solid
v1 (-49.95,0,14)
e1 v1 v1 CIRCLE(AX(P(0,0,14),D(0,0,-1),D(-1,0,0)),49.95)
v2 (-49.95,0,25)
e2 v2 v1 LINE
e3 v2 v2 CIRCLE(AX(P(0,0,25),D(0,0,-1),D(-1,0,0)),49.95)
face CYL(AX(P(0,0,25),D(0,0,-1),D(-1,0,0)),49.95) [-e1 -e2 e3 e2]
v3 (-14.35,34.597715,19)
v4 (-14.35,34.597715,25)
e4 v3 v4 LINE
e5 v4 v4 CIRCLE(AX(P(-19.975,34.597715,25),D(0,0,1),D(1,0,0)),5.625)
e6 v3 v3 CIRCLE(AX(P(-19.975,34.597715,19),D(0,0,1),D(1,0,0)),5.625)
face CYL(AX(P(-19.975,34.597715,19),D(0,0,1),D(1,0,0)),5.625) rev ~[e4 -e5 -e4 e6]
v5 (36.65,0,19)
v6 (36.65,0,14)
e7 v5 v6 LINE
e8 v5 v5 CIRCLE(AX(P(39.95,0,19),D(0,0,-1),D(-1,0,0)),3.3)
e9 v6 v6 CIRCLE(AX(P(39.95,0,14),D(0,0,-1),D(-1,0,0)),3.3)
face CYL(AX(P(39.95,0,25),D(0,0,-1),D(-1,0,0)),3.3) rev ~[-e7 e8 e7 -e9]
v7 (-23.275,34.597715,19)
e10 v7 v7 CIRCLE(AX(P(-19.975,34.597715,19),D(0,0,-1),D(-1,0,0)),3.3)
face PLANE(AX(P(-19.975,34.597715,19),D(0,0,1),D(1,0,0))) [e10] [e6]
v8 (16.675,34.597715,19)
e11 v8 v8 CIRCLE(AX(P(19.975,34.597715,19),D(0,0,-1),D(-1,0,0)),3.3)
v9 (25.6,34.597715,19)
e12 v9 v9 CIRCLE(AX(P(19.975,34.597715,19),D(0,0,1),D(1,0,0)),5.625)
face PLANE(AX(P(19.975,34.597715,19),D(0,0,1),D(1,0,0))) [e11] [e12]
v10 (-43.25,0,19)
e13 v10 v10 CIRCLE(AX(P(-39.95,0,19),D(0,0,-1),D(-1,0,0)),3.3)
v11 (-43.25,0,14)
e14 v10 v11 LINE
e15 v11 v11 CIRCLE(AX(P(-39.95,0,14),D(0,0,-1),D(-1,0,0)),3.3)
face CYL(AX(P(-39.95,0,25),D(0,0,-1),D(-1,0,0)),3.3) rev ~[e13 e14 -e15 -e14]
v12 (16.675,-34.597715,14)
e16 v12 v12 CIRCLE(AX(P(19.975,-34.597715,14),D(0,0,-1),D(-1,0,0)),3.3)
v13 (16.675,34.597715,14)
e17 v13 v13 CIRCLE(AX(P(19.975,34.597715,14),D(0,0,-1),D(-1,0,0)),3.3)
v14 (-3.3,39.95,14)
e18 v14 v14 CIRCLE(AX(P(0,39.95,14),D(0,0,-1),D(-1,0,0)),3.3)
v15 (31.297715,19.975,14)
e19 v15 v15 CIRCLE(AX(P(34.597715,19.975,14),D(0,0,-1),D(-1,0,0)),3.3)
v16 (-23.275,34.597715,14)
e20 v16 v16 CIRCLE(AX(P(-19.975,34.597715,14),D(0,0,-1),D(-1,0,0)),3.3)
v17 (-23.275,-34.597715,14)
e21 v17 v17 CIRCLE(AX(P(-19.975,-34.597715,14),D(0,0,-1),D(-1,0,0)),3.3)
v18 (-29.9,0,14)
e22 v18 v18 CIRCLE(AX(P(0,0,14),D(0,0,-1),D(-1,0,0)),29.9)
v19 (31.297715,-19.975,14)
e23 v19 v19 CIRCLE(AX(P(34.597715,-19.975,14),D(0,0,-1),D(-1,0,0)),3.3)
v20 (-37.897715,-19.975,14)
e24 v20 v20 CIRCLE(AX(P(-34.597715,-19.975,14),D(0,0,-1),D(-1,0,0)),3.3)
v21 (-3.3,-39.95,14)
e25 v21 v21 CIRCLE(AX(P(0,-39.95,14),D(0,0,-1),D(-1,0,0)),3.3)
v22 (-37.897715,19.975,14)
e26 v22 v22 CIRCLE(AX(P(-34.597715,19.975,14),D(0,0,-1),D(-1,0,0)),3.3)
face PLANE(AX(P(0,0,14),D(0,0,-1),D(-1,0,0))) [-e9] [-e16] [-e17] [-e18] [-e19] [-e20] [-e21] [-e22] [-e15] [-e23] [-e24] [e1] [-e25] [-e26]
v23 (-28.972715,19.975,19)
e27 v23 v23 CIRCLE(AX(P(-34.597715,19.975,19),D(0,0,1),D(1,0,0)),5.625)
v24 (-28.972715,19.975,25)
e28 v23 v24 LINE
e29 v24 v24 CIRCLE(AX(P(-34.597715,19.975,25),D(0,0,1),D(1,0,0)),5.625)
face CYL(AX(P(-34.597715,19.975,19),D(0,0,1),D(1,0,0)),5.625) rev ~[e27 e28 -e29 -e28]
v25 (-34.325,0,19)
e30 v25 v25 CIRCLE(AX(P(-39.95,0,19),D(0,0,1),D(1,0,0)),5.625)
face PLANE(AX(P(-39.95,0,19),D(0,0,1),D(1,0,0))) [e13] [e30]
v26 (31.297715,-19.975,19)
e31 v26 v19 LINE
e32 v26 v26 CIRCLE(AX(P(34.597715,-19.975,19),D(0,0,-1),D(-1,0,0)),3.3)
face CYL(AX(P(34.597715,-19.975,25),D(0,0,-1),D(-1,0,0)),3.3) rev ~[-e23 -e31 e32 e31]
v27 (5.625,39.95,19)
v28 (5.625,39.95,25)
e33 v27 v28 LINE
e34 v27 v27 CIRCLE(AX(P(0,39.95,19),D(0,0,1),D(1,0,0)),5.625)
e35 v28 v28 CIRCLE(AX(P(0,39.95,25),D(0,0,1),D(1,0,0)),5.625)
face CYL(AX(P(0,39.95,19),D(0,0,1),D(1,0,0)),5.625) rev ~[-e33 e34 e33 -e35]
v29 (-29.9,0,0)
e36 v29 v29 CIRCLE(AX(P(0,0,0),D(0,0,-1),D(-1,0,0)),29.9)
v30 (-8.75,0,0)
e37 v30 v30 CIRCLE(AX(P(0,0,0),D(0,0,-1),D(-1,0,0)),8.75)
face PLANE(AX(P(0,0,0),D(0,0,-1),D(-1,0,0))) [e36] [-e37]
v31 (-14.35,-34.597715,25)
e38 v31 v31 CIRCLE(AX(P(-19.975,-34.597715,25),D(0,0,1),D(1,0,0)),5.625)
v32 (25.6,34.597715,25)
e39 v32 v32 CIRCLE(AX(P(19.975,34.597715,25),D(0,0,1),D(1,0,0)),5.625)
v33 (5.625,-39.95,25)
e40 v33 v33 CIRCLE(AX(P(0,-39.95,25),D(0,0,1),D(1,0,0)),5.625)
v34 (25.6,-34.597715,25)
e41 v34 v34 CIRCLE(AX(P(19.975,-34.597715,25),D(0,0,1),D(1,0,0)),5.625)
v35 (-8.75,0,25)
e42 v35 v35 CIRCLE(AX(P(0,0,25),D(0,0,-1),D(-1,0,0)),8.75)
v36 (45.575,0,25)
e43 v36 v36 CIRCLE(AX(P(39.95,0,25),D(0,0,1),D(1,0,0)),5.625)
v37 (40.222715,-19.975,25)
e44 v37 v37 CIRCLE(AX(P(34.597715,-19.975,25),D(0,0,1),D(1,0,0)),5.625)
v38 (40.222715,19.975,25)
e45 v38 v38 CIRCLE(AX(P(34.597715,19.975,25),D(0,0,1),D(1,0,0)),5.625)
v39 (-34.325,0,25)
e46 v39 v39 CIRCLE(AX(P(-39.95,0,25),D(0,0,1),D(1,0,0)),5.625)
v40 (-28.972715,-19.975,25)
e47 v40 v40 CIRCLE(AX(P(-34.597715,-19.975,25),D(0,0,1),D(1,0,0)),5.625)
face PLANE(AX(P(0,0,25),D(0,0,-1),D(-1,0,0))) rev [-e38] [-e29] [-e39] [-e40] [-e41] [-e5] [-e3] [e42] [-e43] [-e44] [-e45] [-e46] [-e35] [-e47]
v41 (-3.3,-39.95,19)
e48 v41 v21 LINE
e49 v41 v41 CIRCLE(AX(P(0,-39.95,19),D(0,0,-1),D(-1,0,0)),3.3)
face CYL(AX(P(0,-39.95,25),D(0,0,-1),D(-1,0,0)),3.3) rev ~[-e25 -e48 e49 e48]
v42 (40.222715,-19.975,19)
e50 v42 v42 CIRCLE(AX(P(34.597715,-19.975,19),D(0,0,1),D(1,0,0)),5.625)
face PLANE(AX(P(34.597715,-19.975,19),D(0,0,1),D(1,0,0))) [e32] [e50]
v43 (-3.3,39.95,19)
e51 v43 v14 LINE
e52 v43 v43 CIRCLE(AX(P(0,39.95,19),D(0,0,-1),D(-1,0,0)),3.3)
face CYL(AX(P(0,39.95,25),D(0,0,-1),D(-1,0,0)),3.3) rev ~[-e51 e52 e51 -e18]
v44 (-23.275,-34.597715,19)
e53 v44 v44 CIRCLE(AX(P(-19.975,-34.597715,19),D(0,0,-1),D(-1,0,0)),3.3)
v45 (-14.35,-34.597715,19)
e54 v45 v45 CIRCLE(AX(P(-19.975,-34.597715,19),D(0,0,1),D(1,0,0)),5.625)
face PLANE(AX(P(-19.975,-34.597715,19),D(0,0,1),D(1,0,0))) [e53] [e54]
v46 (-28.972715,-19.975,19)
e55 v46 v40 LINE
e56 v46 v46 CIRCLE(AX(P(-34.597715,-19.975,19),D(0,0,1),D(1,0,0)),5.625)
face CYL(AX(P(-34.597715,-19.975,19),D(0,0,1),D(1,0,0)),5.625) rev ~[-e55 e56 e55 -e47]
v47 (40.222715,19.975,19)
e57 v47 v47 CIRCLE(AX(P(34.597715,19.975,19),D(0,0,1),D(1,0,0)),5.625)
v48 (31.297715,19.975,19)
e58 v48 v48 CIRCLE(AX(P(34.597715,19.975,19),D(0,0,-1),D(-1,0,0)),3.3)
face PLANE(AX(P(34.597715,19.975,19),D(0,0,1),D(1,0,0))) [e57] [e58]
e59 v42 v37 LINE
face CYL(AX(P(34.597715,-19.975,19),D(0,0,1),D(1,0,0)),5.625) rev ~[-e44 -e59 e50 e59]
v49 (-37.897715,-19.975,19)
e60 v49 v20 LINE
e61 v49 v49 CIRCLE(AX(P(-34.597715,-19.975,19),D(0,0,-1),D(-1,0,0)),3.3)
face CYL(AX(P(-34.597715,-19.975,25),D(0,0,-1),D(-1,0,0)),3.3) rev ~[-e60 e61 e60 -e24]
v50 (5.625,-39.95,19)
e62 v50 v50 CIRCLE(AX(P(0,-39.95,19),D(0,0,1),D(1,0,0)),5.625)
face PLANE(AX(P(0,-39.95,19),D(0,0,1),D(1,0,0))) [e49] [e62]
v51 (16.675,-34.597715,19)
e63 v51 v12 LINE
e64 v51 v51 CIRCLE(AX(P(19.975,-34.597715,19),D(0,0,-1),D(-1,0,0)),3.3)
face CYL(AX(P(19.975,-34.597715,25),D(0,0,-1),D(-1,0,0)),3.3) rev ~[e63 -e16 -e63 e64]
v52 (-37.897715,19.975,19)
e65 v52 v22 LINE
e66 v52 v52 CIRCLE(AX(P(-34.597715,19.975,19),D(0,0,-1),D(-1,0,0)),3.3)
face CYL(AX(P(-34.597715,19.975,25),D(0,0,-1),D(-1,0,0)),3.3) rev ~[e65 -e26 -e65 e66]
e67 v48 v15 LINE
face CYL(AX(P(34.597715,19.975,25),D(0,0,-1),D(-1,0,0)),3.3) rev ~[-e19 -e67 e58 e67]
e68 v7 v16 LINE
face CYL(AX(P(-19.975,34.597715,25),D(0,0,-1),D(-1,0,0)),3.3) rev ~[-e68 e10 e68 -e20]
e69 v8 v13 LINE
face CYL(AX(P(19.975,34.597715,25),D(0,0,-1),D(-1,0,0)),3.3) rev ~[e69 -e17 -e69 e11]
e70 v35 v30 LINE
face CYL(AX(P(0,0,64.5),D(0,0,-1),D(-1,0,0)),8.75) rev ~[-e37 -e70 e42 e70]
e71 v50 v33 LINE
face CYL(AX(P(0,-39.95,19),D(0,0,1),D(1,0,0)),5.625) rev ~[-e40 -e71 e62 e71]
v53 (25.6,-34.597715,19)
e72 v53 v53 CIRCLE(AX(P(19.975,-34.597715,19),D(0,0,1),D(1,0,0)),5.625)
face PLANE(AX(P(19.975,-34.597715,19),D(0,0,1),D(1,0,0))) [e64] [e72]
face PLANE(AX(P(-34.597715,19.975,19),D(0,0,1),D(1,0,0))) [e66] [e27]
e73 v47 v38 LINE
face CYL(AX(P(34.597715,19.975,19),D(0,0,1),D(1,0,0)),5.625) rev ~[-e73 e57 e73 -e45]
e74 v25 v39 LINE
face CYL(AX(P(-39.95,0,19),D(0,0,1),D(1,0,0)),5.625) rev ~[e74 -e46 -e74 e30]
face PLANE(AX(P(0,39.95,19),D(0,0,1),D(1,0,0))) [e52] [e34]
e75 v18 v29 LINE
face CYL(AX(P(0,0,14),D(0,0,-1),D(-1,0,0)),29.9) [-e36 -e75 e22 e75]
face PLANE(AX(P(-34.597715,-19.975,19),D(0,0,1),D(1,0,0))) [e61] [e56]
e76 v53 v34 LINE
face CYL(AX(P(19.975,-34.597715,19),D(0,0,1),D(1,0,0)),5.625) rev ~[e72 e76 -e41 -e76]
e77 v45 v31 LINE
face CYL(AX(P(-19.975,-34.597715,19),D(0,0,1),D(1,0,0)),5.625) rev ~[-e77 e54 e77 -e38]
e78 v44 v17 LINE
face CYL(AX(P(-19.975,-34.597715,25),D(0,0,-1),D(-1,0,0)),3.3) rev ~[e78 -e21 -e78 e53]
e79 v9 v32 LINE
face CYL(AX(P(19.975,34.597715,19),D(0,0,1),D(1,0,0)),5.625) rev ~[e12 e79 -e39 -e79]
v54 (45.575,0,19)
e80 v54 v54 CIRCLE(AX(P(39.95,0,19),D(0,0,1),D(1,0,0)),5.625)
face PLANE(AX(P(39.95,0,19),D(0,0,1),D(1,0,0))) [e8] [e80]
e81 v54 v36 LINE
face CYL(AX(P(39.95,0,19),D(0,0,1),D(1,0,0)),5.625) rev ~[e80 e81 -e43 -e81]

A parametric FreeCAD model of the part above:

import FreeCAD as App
import Part
import Sketcher
from FreeCAD import Vector


def add_polygon(sketch, points):
    """Adds a closed chain of lines whose ends are joined by coincident constraints."""
    first, n = sketch.GeometryCount, len(points)
    for a, b in zip(points, points[1:] + points[:1]):
        sketch.addGeometry(Part.LineSegment(App.Vector(*a, 0), App.Vector(*b, 0)), False)
    for i in range(n):
        sketch.addConstraint(Sketcher.Constraint("Coincident", first + i, 2, first + (i + 1) % n, 1))

doc = App.newDocument("Part")
body = doc.addObject("PartDesign::Body", "Body")

# Sketch on XZ plane
sketch1 = body.newObject("Sketcher::SketchObject", "Sketch")
sketch1.AttachmentSupport = (doc.getObject("XZ_Plane"), [""])
sketch1.MapMode = "FlatFace"
add_polygon(sketch1, [(-30, 14), (-30, 0), (0, 0), (0, 25), (-50, 25), (-50, 14)])  # lines 0-5
sketch1.addConstraint(Sketcher.Constraint("Vertical", 0))
sketch1.addConstraint(Sketcher.Constraint("Horizontal", 1))
sketch1.addConstraint(Sketcher.Constraint("Vertical", 2))
sketch1.addConstraint(Sketcher.Constraint("Horizontal", 3))
sketch1.addConstraint(Sketcher.Constraint("Vertical", 4))
sketch1.addConstraint(Sketcher.Constraint("Horizontal", 5))
sketch1.addConstraint(Sketcher.Constraint("Coincident", 1, 2, -1, 1))
sketch1.addConstraint(Sketcher.Constraint("DistanceY", 0, 2, 0, 1, 14.0))
sketch1.addConstraint(Sketcher.Constraint("DistanceY", 2, 1, 2, 2, 25.0))
sketch1.addConstraint(Sketcher.Constraint("DistanceX", 1, 1, 1, 2, 29.9))
sketch1.addConstraint(Sketcher.Constraint("DistanceX", 3, 2, 3, 1, 49.95))
revolution = body.newObject("PartDesign::Revolution", "Revolution")
revolution.Profile = sketch1
revolution.ReferenceAxis = (sketch1, ["V_Axis"])
revolution.Angle = 360

# Sketch on XY plane
sketch2 = body.newObject("Sketcher::SketchObject", "Sketch001")
sketch2.AttachmentSupport = (doc.getObject("XY_Plane"), [""])
sketch2.MapMode = "FlatFace"
sketch2.AttachmentOffset = App.Placement(Vector(0, 0, 25), App.Rotation())
sketch2.addGeometry(Part.Circle(Vector(20, -34.6, 0), Vector(0, 0, 1), 3.3), False)
sketch2.addGeometry(Part.Circle(Vector(40, 0, 0), Vector(0, 0, 1), 3.3), False)
sketch2.addGeometry(Part.Circle(Vector(34.6, 20, 0), Vector(0, 0, 1), 3.3), False)
sketch2.addGeometry(Part.Circle(Vector(34.6, -20, 0), Vector(0, 0, 1), 3.3), False)
sketch2.addGeometry(Part.Circle(Vector(20, 34.6, 0), Vector(0, 0, 1), 3.3), False)
sketch2.addGeometry(Part.Circle(Vector(0, 40, 0), Vector(0, 0, 1), 3.3), False)
sketch2.addGeometry(Part.Circle(Vector(-20, 34.6, 0), Vector(0, 0, 1), 3.3), False)
sketch2.addGeometry(Part.Circle(Vector(-34.6, 20, 0), Vector(0, 0, 1), 3.3), False)
sketch2.addGeometry(Part.Circle(Vector(-40, 0, 0), Vector(0, 0, 1), 3.3), False)
sketch2.addGeometry(Part.Circle(Vector(-34.6, -20, 0), Vector(0, 0, 1), 3.3), False)
sketch2.addGeometry(Part.Circle(Vector(-20, -34.6, 0), Vector(0, 0, 1), 3.3), False)
sketch2.addGeometry(Part.Circle(Vector(0, -40, 0), Vector(0, 0, 1), 3.3), False)
sketch2.addConstraint(Sketcher.Constraint("Equal", 0, 1))
sketch2.addConstraint(Sketcher.Constraint("Equal", 1, 2))
sketch2.addConstraint(Sketcher.Constraint("Equal", 2, 3))
sketch2.addConstraint(Sketcher.Constraint("Equal", 3, 4))
sketch2.addConstraint(Sketcher.Constraint("Equal", 4, 5))
sketch2.addConstraint(Sketcher.Constraint("Equal", 5, 6))
sketch2.addConstraint(Sketcher.Constraint("Equal", 6, 7))
sketch2.addConstraint(Sketcher.Constraint("Equal", 7, 8))
sketch2.addConstraint(Sketcher.Constraint("Equal", 8, 9))
sketch2.addConstraint(Sketcher.Constraint("Equal", 9, 10))
sketch2.addConstraint(Sketcher.Constraint("Equal", 10, 11))
sketch2.addConstraint(Sketcher.Constraint("Symmetric", 0, 3, 6, 3, -1, 1))
sketch2.addConstraint(Sketcher.Constraint("Symmetric", 3, 3, 7, 3, -1, 1))
sketch2.addConstraint(Sketcher.Constraint("Symmetric", 1, 3, 8, 3, -1, 1))
sketch2.addConstraint(Sketcher.Constraint("Symmetric", 2, 3, 9, 3, -1, 1))
sketch2.addConstraint(Sketcher.Constraint("Symmetric", 4, 3, 10, 3, -1, 1))
sketch2.addConstraint(Sketcher.Constraint("Symmetric", 5, 3, 11, 3, -1, 1))
sketch2.addConstraint(Sketcher.Constraint("Symmetric", 4, 3, 6, 3, -2))
sketch2.addConstraint(Sketcher.Constraint("Symmetric", 2, 3, 7, 3, -2))
sketch2.addConstraint(Sketcher.Constraint("PointOnObject", 1, 3, -1))
sketch2.addConstraint(Sketcher.Constraint("PointOnObject", 5, 3, -2))
sketch2.addConstraint(Sketcher.Constraint("Diameter", 0, 6.6))
sketch2.addConstraint(Sketcher.Constraint("DistanceX", -1, 1, 1, 3, 39.95))
sketch2.addConstraint(Sketcher.Constraint("DistanceY", -1, 1, 5, 3, 39.95))
sketch2.addConstraint(Sketcher.Constraint("DistanceY", 3, 3, 2, 3, 39.95))
sketch2.addConstraint(Sketcher.Constraint("DistanceX", 6, 3, 4, 3, 39.95))
sketch2.addConstraint(Sketcher.Constraint("DistanceY", 0, 3, 4, 3, 69.19543))
sketch2.addConstraint(Sketcher.Constraint("DistanceX", 7, 3, 2, 3, 69.19543))
doc.recompute()
hole = body.newObject("PartDesign::Hole", "Hole")
hole.Profile = sketch2
hole.ThreadType = "None"
hole.Diameter = 6.6
hole.DepthType = "Dimension"
hole.Depth = 35
hole.DrillPoint = "Angled"
hole.DrillPointAngle = 118
hole.HoleCutType = "Counterbore"
hole.HoleCutDiameter = 11.25
hole.HoleCutDepth = 6

# Sketch on XY plane
sketch3 = body.newObject("Sketcher::SketchObject", "Sketch002")
sketch3.AttachmentSupport = (doc.getObject("XY_Plane"), [""])
sketch3.MapMode = "FlatFace"
sketch3.AttachmentOffset = App.Placement(Vector(0, 0, 25), App.Rotation())
sketch3.addGeometry(Part.Circle(Vector(0, 0, 0), Vector(0, 0, 1), 9), False)
sketch3.addConstraint(Sketcher.Constraint("Coincident", 0, 3, -1, 1))
sketch3.addConstraint(Sketcher.Constraint("Diameter", 0, 17.5))
doc.recompute()
hole2 = body.newObject("PartDesign::Hole", "Hole001")
hole2.Profile = sketch3
hole2.ThreadType = "None"
hole2.Diameter = 17.5
hole2.DepthType = "Dimension"
hole2.Depth = 39.5
hole2.DrillPoint = "Angled"
hole2.DrillPointAngle = 118

doc.recompute()
